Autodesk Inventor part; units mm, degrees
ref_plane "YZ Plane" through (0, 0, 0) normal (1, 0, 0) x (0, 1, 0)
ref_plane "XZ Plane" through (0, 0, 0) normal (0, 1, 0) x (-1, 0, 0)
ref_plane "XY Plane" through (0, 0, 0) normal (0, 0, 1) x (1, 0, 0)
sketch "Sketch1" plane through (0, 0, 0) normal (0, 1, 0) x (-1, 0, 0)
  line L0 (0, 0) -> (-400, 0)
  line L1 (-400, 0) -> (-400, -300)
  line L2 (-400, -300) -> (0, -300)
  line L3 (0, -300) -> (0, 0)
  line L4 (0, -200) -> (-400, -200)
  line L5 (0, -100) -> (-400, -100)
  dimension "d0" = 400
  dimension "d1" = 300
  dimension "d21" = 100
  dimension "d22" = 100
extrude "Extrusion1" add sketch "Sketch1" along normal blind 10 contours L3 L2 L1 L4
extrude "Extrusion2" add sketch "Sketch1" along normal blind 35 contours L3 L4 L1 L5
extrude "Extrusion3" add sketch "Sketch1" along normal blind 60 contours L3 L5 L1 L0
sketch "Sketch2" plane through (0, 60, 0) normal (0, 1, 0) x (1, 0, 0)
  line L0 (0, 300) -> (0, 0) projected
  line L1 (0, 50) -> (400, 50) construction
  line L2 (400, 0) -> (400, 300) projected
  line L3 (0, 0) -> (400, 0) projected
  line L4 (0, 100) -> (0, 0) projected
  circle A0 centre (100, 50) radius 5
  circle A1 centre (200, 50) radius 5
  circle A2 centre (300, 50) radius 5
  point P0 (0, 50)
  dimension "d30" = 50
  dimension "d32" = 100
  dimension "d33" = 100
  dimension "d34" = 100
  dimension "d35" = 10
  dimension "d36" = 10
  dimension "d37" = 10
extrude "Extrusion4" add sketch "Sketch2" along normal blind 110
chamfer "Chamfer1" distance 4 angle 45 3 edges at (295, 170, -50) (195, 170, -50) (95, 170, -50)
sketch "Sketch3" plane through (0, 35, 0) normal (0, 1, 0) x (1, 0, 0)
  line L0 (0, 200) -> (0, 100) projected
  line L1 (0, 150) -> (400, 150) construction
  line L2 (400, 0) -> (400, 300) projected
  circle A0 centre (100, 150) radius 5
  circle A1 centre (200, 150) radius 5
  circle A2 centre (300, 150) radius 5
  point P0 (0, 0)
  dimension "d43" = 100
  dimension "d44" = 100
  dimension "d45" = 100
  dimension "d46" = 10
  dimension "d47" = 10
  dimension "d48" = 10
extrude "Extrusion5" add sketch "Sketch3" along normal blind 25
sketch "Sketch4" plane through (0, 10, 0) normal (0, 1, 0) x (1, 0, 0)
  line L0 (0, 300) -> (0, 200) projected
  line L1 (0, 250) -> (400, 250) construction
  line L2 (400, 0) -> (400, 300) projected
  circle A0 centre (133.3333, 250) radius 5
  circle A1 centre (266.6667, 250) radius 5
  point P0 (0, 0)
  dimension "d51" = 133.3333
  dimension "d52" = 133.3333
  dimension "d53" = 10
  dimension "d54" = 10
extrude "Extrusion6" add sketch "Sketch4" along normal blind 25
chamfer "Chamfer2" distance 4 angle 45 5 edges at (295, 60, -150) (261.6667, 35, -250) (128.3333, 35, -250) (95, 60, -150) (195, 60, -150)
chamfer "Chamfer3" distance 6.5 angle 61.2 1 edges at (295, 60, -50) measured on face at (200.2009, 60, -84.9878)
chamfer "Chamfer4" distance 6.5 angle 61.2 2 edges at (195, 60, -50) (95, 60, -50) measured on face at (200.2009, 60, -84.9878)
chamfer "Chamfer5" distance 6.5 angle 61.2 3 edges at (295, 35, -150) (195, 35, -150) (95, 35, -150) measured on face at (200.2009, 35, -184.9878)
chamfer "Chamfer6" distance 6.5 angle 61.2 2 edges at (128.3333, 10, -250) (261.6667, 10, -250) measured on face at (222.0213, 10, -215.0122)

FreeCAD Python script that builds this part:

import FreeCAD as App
import Part
import Sketcher
Q = App.Units.Quantity


def edges_at(feature, points):
    """Names of the edges that pass closest to the given points."""
    edges = feature.Shape.Edges
    near = lambda p: min(range(len(edges)), key=lambda i: edges[i].distToShape(Part.Vertex(*p))[0])
    return sorted({f"Edge{near(p) + 1}" for p in points})


def add_polygon(sketch, points):
    """Adds a closed chain of lines whose ends are joined by coincident constraints."""
    first, n = sketch.GeometryCount, len(points)
    for a, b in zip(points, points[1:] + points[:1]):
        sketch.addGeometry(Part.LineSegment(App.Vector(*a, 0), App.Vector(*b, 0)), False)
    for i in range(n):
        sketch.addConstraint(Sketcher.Constraint("Coincident", first + i, 2, first + (i + 1) % n, 1))

doc = App.newDocument("Part")
params = doc.addObject("Spreadsheet::Sheet", "Params")
for row, (alias, value) in enumerate([
    ("sketch1_width", "400 mm"),
    ("sketch1_height", "100 mm"),
    ("pad1_length", "10 mm"),
    ("sketch2_width", "400 mm"),
    ("sketch2_height", "100 mm"),
    ("pad2_length", "35 mm"),
    ("sketch3_width", "400 mm"),
    ("sketch3_height", "100 mm"),
    ("pad3_length", "60 mm"),
    ("sketch4_diameter", "10 mm"),
    ("pad4_length", "110 mm"),
    ("chamfer_size", "4 mm"),
    ("sketch5_diameter", "10 mm"),
    ("pad5_length", "25 mm"),
    ("sketch6_diameter", "10 mm"),
    ("pad6_length", "25 mm"),
    ("chamfer2_size", "4 mm"),
    ("chamfer3_size", "6.5 mm"),
    ("chamfer4_size", "6.5 mm"),
    ("chamfer5_size", "6.5 mm"),
    ("chamfer6_size", "6.5 mm"),
], start=1):
    params.set(f"A{row}", alias)
    params.set(f"B{row}", "=" + value)
    params.setAlias(f"B{row}", alias)

body = doc.addObject("PartDesign::Body", "Body")

# Sketch on XZ plane
sketch1 = body.newObject("Sketcher::SketchObject", "Sketch")
sketch1.AttachmentSupport = (doc.getObject("XZ_Plane"), [""])
sketch1.MapMode = "FlatFace"
add_polygon(sketch1, [(0, -300), (0, -200), (400, -200), (400, -300)])  # lines 0-3
sketch1.addConstraint(Sketcher.Constraint("Vertical", 0))
sketch1.addConstraint(Sketcher.Constraint("Horizontal", 1))
sketch1.addConstraint(Sketcher.Constraint("Vertical", 2))
sketch1.addConstraint(Sketcher.Constraint("Horizontal", 3))
sketch1.addConstraint(Sketcher.Constraint("PointOnObject", 0, 2, -2))
sketch1.addConstraint(Sketcher.Constraint("DistanceX", 1, 1, 1, 2, Q("400 mm")))
sketch1.addConstraint(Sketcher.Constraint("DistanceY", 0, 1, 0, 2, Q("100 mm")))
sketch1.addConstraint(Sketcher.Constraint("DistanceY", 2, 2, -1, 1, Q("300 mm")))
sketch1.setExpression("Constraints[9]", "Params.sketch1_width")
sketch1.setExpression("Constraints[10]", "Params.sketch1_height")
pad1 = body.newObject("PartDesign::Pad", "Pad")
pad1.Profile = sketch1
pad1.setExpression("Length", "Params.pad1_length")
pad1.Reversed = True

# Sketch on XZ plane
sketch2 = body.newObject("Sketcher::SketchObject", "Sketch001")
sketch2.AttachmentSupport = (doc.getObject("XZ_Plane"), [""])
sketch2.MapMode = "FlatFace"
add_polygon(sketch2, [(0, -200), (0, -100), (400, -100), (400, -200)])  # lines 0-3
sketch2.addConstraint(Sketcher.Constraint("Vertical", 0))
sketch2.addConstraint(Sketcher.Constraint("Horizontal", 1))
sketch2.addConstraint(Sketcher.Constraint("Vertical", 2))
sketch2.addConstraint(Sketcher.Constraint("Horizontal", 3))
sketch2.addConstraint(Sketcher.Constraint("PointOnObject", 0, 2, -2))
sketch2.addConstraint(Sketcher.Constraint("DistanceX", 1, 1, 1, 2, Q("400 mm")))
sketch2.addConstraint(Sketcher.Constraint("DistanceY", 0, 1, 0, 2, Q("100 mm")))
sketch2.addConstraint(Sketcher.Constraint("DistanceY", 0, 2, -1, 1, Q("100 mm")))
sketch2.setExpression("Constraints[9]", "Params.sketch2_width")
sketch2.setExpression("Constraints[10]", "Params.sketch2_height")
pad2 = body.newObject("PartDesign::Pad", "Pad001")
pad2.Profile = sketch2
pad2.setExpression("Length", "Params.pad2_length")
pad2.Reversed = True

# Sketch on XZ plane
sketch3 = body.newObject("Sketcher::SketchObject", "Sketch002")
sketch3.AttachmentSupport = (doc.getObject("XZ_Plane"), [""])
sketch3.MapMode = "FlatFace"
add_polygon(sketch3, [(0, -100), (0, 0), (400, 0), (400, -100)])  # lines 0-3
sketch3.addConstraint(Sketcher.Constraint("Vertical", 0))
sketch3.addConstraint(Sketcher.Constraint("Horizontal", 1))
sketch3.addConstraint(Sketcher.Constraint("Vertical", 2))
sketch3.addConstraint(Sketcher.Constraint("Horizontal", 3))
sketch3.addConstraint(Sketcher.Constraint("Coincident", 0, 2, -1, 1))
sketch3.addConstraint(Sketcher.Constraint("DistanceX", 1, 1, 1, 2, Q("400 mm")))
sketch3.addConstraint(Sketcher.Constraint("DistanceY", 0, 1, 0, 2, Q("100 mm")))
sketch3.setExpression("Constraints[9]", "Params.sketch3_width")
sketch3.setExpression("Constraints[10]", "Params.sketch3_height")
pad3 = body.newObject("PartDesign::Pad", "Pad002")
pad3.Profile = sketch3
pad3.setExpression("Length", "Params.pad3_length")
pad3.Reversed = True

# Sketch on XZ plane
sketch4 = body.newObject("Sketcher::SketchObject", "Sketch003")
sketch4.AttachmentSupport = (doc.getObject("XZ_Plane"), [""])
sketch4.MapMode = "FlatFace"
sketch4.AttachmentOffset = App.Placement(App.Vector(0, 0, -60), App.Rotation())
sketch4.addGeometry(Part.Circle(App.Vector(100, -50, 0), App.Vector(0, 0, 1), 5), False)
sketch4.addGeometry(Part.Circle(App.Vector(200, -50, 0), App.Vector(0, 0, 1), 5), False)
sketch4.addGeometry(Part.Circle(App.Vector(300, -50, 0), App.Vector(0, 0, 1), 5), False)
sketch4.addConstraint(Sketcher.Constraint("Equal", 0, 1))
sketch4.addConstraint(Sketcher.Constraint("Equal", 1, 2))
sketch4.addConstraint(Sketcher.Constraint("Horizontal", 0, 3, 1, 3))
sketch4.addConstraint(Sketcher.Constraint("Horizontal", 1, 3, 2, 3))
sketch4.addConstraint(Sketcher.Constraint("Diameter", 0, Q("10 mm")))
sketch4.addConstraint(Sketcher.Constraint("DistanceX", -1, 1, 0, 3, Q("100 mm")))
sketch4.addConstraint(Sketcher.Constraint("DistanceY", 0, 3, -1, 1, Q("50 mm")))
sketch4.addConstraint(Sketcher.Constraint("DistanceX", 0, 3, 1, 3, Q("100 mm")))
sketch4.addConstraint(Sketcher.Constraint("DistanceX", 1, 3, 2, 3, Q("100 mm")))
sketch4.setExpression("Constraints[4]", "Params.sketch4_diameter")
pad4 = body.newObject("PartDesign::Pad", "Pad003")
pad4.Profile = sketch4
pad4.setExpression("Length", "Params.pad4_length")
pad4.Reversed = True
doc.recompute()

chamfer = body.newObject("PartDesign::Chamfer", "Chamfer")
chamfer.Base = (pad4, edges_at(pad4, [(295, 170, -50), (195, 170, -50), (95, 170, -50)]))
chamfer.setExpression("Size", "Params.chamfer_size")

# Sketch on XZ plane
sketch5 = body.newObject("Sketcher::SketchObject", "Sketch004")
sketch5.AttachmentSupport = (doc.getObject("XZ_Plane"), [""])
sketch5.MapMode = "FlatFace"
sketch5.AttachmentOffset = App.Placement(App.Vector(0, 0, -35), App.Rotation())
sketch5.addGeometry(Part.Circle(App.Vector(100, -150, 0), App.Vector(0, 0, 1), 5), False)
sketch5.addGeometry(Part.Circle(App.Vector(200, -150, 0), App.Vector(0, 0, 1), 5), False)
sketch5.addGeometry(Part.Circle(App.Vector(300, -150, 0), App.Vector(0, 0, 1), 5), False)
sketch5.addConstraint(Sketcher.Constraint("Equal", 0, 1))
sketch5.addConstraint(Sketcher.Constraint("Equal", 1, 2))
sketch5.addConstraint(Sketcher.Constraint("Horizontal", 0, 3, 1, 3))
sketch5.addConstraint(Sketcher.Constraint("Horizontal", 1, 3, 2, 3))
sketch5.addConstraint(Sketcher.Constraint("Diameter", 0, Q("10 mm")))
sketch5.addConstraint(Sketcher.Constraint("DistanceX", -1, 1, 0, 3, Q("100 mm")))
sketch5.addConstraint(Sketcher.Constraint("DistanceX", 0, 3, 1, 3, Q("100 mm")))
sketch5.addConstraint(Sketcher.Constraint("DistanceX", 1, 3, 2, 3, Q("100 mm")))
sketch5.addConstraint(Sketcher.Constraint("DistanceY", 0, 3, -1, 1, Q("150 mm")))
sketch5.setExpression("Constraints[4]", "Params.sketch5_diameter")
pad5 = body.newObject("PartDesign::Pad", "Pad004")
pad5.Profile = sketch5
pad5.setExpression("Length", "Params.pad5_length")
pad5.Reversed = True

# Sketch on XZ plane
sketch6 = body.newObject("Sketcher::SketchObject", "Sketch005")
sketch6.AttachmentSupport = (doc.getObject("XZ_Plane"), [""])
sketch6.MapMode = "FlatFace"
sketch6.AttachmentOffset = App.Placement(App.Vector(0, 0, -10), App.Rotation())
sketch6.addGeometry(Part.Circle(App.Vector(133, -250, 0), App.Vector(0, 0, 1), 5), False)
sketch6.addGeometry(Part.Circle(App.Vector(267, -250, 0), App.Vector(0, 0, 1), 5), False)
sketch6.addConstraint(Sketcher.Constraint("Equal", 0, 1))
sketch6.addConstraint(Sketcher.Constraint("Horizontal", 0, 3, 1, 3))
sketch6.addConstraint(Sketcher.Constraint("Diameter", 0, Q("10 mm")))
sketch6.addConstraint(Sketcher.Constraint("DistanceY", 0, 3, -1, 1, Q("250 mm")))
sketch6.addConstraint(Sketcher.Constraint("DistanceX", -1, 1, 0, 3, Q("133.3333 mm")))
sketch6.addConstraint(Sketcher.Constraint("DistanceX", 0, 3, 1, 3, Q("133.3334 mm")))
sketch6.setExpression("Constraints[2]", "Params.sketch6_diameter")
pad6 = body.newObject("PartDesign::Pad", "Pad005")
pad6.Profile = sketch6
pad6.setExpression("Length", "Params.pad6_length")
pad6.Reversed = True
doc.recompute()

chamfer2 = body.newObject("PartDesign::Chamfer", "Chamfer001")
chamfer2.Base = (pad6, edges_at(pad6, [
    (295, 60, -150),
    (261.667, 35, -250),
    (128.333, 35, -250),
    (95, 60, -150),
    (195, 60, -150),
]))
chamfer2.setExpression("Size", "Params.chamfer2_size")
doc.recompute()

chamfer3 = body.newObject("PartDesign::Chamfer", "Chamfer002")
chamfer3.Base = (chamfer2, edges_at(chamfer2, [(295, 60, -50)]))
chamfer3.ChamferType = "Distance and Angle"
chamfer3.setExpression("Size", "Params.chamfer3_size")
chamfer3.Angle = 61.2
doc.recompute()

chamfer4 = body.newObject("PartDesign::Chamfer", "Chamfer003")
chamfer4.Base = (chamfer3, edges_at(chamfer3, [(195, 60, -50), (95, 60, -50)]))
chamfer4.ChamferType = "Distance and Angle"
chamfer4.setExpression("Size", "Params.chamfer4_size")
chamfer4.Angle = 61.2
doc.recompute()

chamfer5 = body.newObject("PartDesign::Chamfer", "Chamfer004")
chamfer5.Base = (chamfer4, edges_at(chamfer4, [(295, 35, -150), (195, 35, -150), (95, 35, -150)]))
chamfer5.ChamferType = "Distance and Angle"
chamfer5.setExpression("Size", "Params.chamfer5_size")
chamfer5.Angle = 61.2
doc.recompute()

chamfer6 = body.newObject("PartDesign::Chamfer", "Chamfer005")
chamfer6.Base = (chamfer5, edges_at(chamfer5, [(128.333, 10, -250), (261.667, 10, -250)]))
chamfer6.ChamferType = "Distance and Angle"
chamfer6.setExpression("Size", "Params.chamfer6_size")
chamfer6.Angle = 61.2

doc.recompute()
